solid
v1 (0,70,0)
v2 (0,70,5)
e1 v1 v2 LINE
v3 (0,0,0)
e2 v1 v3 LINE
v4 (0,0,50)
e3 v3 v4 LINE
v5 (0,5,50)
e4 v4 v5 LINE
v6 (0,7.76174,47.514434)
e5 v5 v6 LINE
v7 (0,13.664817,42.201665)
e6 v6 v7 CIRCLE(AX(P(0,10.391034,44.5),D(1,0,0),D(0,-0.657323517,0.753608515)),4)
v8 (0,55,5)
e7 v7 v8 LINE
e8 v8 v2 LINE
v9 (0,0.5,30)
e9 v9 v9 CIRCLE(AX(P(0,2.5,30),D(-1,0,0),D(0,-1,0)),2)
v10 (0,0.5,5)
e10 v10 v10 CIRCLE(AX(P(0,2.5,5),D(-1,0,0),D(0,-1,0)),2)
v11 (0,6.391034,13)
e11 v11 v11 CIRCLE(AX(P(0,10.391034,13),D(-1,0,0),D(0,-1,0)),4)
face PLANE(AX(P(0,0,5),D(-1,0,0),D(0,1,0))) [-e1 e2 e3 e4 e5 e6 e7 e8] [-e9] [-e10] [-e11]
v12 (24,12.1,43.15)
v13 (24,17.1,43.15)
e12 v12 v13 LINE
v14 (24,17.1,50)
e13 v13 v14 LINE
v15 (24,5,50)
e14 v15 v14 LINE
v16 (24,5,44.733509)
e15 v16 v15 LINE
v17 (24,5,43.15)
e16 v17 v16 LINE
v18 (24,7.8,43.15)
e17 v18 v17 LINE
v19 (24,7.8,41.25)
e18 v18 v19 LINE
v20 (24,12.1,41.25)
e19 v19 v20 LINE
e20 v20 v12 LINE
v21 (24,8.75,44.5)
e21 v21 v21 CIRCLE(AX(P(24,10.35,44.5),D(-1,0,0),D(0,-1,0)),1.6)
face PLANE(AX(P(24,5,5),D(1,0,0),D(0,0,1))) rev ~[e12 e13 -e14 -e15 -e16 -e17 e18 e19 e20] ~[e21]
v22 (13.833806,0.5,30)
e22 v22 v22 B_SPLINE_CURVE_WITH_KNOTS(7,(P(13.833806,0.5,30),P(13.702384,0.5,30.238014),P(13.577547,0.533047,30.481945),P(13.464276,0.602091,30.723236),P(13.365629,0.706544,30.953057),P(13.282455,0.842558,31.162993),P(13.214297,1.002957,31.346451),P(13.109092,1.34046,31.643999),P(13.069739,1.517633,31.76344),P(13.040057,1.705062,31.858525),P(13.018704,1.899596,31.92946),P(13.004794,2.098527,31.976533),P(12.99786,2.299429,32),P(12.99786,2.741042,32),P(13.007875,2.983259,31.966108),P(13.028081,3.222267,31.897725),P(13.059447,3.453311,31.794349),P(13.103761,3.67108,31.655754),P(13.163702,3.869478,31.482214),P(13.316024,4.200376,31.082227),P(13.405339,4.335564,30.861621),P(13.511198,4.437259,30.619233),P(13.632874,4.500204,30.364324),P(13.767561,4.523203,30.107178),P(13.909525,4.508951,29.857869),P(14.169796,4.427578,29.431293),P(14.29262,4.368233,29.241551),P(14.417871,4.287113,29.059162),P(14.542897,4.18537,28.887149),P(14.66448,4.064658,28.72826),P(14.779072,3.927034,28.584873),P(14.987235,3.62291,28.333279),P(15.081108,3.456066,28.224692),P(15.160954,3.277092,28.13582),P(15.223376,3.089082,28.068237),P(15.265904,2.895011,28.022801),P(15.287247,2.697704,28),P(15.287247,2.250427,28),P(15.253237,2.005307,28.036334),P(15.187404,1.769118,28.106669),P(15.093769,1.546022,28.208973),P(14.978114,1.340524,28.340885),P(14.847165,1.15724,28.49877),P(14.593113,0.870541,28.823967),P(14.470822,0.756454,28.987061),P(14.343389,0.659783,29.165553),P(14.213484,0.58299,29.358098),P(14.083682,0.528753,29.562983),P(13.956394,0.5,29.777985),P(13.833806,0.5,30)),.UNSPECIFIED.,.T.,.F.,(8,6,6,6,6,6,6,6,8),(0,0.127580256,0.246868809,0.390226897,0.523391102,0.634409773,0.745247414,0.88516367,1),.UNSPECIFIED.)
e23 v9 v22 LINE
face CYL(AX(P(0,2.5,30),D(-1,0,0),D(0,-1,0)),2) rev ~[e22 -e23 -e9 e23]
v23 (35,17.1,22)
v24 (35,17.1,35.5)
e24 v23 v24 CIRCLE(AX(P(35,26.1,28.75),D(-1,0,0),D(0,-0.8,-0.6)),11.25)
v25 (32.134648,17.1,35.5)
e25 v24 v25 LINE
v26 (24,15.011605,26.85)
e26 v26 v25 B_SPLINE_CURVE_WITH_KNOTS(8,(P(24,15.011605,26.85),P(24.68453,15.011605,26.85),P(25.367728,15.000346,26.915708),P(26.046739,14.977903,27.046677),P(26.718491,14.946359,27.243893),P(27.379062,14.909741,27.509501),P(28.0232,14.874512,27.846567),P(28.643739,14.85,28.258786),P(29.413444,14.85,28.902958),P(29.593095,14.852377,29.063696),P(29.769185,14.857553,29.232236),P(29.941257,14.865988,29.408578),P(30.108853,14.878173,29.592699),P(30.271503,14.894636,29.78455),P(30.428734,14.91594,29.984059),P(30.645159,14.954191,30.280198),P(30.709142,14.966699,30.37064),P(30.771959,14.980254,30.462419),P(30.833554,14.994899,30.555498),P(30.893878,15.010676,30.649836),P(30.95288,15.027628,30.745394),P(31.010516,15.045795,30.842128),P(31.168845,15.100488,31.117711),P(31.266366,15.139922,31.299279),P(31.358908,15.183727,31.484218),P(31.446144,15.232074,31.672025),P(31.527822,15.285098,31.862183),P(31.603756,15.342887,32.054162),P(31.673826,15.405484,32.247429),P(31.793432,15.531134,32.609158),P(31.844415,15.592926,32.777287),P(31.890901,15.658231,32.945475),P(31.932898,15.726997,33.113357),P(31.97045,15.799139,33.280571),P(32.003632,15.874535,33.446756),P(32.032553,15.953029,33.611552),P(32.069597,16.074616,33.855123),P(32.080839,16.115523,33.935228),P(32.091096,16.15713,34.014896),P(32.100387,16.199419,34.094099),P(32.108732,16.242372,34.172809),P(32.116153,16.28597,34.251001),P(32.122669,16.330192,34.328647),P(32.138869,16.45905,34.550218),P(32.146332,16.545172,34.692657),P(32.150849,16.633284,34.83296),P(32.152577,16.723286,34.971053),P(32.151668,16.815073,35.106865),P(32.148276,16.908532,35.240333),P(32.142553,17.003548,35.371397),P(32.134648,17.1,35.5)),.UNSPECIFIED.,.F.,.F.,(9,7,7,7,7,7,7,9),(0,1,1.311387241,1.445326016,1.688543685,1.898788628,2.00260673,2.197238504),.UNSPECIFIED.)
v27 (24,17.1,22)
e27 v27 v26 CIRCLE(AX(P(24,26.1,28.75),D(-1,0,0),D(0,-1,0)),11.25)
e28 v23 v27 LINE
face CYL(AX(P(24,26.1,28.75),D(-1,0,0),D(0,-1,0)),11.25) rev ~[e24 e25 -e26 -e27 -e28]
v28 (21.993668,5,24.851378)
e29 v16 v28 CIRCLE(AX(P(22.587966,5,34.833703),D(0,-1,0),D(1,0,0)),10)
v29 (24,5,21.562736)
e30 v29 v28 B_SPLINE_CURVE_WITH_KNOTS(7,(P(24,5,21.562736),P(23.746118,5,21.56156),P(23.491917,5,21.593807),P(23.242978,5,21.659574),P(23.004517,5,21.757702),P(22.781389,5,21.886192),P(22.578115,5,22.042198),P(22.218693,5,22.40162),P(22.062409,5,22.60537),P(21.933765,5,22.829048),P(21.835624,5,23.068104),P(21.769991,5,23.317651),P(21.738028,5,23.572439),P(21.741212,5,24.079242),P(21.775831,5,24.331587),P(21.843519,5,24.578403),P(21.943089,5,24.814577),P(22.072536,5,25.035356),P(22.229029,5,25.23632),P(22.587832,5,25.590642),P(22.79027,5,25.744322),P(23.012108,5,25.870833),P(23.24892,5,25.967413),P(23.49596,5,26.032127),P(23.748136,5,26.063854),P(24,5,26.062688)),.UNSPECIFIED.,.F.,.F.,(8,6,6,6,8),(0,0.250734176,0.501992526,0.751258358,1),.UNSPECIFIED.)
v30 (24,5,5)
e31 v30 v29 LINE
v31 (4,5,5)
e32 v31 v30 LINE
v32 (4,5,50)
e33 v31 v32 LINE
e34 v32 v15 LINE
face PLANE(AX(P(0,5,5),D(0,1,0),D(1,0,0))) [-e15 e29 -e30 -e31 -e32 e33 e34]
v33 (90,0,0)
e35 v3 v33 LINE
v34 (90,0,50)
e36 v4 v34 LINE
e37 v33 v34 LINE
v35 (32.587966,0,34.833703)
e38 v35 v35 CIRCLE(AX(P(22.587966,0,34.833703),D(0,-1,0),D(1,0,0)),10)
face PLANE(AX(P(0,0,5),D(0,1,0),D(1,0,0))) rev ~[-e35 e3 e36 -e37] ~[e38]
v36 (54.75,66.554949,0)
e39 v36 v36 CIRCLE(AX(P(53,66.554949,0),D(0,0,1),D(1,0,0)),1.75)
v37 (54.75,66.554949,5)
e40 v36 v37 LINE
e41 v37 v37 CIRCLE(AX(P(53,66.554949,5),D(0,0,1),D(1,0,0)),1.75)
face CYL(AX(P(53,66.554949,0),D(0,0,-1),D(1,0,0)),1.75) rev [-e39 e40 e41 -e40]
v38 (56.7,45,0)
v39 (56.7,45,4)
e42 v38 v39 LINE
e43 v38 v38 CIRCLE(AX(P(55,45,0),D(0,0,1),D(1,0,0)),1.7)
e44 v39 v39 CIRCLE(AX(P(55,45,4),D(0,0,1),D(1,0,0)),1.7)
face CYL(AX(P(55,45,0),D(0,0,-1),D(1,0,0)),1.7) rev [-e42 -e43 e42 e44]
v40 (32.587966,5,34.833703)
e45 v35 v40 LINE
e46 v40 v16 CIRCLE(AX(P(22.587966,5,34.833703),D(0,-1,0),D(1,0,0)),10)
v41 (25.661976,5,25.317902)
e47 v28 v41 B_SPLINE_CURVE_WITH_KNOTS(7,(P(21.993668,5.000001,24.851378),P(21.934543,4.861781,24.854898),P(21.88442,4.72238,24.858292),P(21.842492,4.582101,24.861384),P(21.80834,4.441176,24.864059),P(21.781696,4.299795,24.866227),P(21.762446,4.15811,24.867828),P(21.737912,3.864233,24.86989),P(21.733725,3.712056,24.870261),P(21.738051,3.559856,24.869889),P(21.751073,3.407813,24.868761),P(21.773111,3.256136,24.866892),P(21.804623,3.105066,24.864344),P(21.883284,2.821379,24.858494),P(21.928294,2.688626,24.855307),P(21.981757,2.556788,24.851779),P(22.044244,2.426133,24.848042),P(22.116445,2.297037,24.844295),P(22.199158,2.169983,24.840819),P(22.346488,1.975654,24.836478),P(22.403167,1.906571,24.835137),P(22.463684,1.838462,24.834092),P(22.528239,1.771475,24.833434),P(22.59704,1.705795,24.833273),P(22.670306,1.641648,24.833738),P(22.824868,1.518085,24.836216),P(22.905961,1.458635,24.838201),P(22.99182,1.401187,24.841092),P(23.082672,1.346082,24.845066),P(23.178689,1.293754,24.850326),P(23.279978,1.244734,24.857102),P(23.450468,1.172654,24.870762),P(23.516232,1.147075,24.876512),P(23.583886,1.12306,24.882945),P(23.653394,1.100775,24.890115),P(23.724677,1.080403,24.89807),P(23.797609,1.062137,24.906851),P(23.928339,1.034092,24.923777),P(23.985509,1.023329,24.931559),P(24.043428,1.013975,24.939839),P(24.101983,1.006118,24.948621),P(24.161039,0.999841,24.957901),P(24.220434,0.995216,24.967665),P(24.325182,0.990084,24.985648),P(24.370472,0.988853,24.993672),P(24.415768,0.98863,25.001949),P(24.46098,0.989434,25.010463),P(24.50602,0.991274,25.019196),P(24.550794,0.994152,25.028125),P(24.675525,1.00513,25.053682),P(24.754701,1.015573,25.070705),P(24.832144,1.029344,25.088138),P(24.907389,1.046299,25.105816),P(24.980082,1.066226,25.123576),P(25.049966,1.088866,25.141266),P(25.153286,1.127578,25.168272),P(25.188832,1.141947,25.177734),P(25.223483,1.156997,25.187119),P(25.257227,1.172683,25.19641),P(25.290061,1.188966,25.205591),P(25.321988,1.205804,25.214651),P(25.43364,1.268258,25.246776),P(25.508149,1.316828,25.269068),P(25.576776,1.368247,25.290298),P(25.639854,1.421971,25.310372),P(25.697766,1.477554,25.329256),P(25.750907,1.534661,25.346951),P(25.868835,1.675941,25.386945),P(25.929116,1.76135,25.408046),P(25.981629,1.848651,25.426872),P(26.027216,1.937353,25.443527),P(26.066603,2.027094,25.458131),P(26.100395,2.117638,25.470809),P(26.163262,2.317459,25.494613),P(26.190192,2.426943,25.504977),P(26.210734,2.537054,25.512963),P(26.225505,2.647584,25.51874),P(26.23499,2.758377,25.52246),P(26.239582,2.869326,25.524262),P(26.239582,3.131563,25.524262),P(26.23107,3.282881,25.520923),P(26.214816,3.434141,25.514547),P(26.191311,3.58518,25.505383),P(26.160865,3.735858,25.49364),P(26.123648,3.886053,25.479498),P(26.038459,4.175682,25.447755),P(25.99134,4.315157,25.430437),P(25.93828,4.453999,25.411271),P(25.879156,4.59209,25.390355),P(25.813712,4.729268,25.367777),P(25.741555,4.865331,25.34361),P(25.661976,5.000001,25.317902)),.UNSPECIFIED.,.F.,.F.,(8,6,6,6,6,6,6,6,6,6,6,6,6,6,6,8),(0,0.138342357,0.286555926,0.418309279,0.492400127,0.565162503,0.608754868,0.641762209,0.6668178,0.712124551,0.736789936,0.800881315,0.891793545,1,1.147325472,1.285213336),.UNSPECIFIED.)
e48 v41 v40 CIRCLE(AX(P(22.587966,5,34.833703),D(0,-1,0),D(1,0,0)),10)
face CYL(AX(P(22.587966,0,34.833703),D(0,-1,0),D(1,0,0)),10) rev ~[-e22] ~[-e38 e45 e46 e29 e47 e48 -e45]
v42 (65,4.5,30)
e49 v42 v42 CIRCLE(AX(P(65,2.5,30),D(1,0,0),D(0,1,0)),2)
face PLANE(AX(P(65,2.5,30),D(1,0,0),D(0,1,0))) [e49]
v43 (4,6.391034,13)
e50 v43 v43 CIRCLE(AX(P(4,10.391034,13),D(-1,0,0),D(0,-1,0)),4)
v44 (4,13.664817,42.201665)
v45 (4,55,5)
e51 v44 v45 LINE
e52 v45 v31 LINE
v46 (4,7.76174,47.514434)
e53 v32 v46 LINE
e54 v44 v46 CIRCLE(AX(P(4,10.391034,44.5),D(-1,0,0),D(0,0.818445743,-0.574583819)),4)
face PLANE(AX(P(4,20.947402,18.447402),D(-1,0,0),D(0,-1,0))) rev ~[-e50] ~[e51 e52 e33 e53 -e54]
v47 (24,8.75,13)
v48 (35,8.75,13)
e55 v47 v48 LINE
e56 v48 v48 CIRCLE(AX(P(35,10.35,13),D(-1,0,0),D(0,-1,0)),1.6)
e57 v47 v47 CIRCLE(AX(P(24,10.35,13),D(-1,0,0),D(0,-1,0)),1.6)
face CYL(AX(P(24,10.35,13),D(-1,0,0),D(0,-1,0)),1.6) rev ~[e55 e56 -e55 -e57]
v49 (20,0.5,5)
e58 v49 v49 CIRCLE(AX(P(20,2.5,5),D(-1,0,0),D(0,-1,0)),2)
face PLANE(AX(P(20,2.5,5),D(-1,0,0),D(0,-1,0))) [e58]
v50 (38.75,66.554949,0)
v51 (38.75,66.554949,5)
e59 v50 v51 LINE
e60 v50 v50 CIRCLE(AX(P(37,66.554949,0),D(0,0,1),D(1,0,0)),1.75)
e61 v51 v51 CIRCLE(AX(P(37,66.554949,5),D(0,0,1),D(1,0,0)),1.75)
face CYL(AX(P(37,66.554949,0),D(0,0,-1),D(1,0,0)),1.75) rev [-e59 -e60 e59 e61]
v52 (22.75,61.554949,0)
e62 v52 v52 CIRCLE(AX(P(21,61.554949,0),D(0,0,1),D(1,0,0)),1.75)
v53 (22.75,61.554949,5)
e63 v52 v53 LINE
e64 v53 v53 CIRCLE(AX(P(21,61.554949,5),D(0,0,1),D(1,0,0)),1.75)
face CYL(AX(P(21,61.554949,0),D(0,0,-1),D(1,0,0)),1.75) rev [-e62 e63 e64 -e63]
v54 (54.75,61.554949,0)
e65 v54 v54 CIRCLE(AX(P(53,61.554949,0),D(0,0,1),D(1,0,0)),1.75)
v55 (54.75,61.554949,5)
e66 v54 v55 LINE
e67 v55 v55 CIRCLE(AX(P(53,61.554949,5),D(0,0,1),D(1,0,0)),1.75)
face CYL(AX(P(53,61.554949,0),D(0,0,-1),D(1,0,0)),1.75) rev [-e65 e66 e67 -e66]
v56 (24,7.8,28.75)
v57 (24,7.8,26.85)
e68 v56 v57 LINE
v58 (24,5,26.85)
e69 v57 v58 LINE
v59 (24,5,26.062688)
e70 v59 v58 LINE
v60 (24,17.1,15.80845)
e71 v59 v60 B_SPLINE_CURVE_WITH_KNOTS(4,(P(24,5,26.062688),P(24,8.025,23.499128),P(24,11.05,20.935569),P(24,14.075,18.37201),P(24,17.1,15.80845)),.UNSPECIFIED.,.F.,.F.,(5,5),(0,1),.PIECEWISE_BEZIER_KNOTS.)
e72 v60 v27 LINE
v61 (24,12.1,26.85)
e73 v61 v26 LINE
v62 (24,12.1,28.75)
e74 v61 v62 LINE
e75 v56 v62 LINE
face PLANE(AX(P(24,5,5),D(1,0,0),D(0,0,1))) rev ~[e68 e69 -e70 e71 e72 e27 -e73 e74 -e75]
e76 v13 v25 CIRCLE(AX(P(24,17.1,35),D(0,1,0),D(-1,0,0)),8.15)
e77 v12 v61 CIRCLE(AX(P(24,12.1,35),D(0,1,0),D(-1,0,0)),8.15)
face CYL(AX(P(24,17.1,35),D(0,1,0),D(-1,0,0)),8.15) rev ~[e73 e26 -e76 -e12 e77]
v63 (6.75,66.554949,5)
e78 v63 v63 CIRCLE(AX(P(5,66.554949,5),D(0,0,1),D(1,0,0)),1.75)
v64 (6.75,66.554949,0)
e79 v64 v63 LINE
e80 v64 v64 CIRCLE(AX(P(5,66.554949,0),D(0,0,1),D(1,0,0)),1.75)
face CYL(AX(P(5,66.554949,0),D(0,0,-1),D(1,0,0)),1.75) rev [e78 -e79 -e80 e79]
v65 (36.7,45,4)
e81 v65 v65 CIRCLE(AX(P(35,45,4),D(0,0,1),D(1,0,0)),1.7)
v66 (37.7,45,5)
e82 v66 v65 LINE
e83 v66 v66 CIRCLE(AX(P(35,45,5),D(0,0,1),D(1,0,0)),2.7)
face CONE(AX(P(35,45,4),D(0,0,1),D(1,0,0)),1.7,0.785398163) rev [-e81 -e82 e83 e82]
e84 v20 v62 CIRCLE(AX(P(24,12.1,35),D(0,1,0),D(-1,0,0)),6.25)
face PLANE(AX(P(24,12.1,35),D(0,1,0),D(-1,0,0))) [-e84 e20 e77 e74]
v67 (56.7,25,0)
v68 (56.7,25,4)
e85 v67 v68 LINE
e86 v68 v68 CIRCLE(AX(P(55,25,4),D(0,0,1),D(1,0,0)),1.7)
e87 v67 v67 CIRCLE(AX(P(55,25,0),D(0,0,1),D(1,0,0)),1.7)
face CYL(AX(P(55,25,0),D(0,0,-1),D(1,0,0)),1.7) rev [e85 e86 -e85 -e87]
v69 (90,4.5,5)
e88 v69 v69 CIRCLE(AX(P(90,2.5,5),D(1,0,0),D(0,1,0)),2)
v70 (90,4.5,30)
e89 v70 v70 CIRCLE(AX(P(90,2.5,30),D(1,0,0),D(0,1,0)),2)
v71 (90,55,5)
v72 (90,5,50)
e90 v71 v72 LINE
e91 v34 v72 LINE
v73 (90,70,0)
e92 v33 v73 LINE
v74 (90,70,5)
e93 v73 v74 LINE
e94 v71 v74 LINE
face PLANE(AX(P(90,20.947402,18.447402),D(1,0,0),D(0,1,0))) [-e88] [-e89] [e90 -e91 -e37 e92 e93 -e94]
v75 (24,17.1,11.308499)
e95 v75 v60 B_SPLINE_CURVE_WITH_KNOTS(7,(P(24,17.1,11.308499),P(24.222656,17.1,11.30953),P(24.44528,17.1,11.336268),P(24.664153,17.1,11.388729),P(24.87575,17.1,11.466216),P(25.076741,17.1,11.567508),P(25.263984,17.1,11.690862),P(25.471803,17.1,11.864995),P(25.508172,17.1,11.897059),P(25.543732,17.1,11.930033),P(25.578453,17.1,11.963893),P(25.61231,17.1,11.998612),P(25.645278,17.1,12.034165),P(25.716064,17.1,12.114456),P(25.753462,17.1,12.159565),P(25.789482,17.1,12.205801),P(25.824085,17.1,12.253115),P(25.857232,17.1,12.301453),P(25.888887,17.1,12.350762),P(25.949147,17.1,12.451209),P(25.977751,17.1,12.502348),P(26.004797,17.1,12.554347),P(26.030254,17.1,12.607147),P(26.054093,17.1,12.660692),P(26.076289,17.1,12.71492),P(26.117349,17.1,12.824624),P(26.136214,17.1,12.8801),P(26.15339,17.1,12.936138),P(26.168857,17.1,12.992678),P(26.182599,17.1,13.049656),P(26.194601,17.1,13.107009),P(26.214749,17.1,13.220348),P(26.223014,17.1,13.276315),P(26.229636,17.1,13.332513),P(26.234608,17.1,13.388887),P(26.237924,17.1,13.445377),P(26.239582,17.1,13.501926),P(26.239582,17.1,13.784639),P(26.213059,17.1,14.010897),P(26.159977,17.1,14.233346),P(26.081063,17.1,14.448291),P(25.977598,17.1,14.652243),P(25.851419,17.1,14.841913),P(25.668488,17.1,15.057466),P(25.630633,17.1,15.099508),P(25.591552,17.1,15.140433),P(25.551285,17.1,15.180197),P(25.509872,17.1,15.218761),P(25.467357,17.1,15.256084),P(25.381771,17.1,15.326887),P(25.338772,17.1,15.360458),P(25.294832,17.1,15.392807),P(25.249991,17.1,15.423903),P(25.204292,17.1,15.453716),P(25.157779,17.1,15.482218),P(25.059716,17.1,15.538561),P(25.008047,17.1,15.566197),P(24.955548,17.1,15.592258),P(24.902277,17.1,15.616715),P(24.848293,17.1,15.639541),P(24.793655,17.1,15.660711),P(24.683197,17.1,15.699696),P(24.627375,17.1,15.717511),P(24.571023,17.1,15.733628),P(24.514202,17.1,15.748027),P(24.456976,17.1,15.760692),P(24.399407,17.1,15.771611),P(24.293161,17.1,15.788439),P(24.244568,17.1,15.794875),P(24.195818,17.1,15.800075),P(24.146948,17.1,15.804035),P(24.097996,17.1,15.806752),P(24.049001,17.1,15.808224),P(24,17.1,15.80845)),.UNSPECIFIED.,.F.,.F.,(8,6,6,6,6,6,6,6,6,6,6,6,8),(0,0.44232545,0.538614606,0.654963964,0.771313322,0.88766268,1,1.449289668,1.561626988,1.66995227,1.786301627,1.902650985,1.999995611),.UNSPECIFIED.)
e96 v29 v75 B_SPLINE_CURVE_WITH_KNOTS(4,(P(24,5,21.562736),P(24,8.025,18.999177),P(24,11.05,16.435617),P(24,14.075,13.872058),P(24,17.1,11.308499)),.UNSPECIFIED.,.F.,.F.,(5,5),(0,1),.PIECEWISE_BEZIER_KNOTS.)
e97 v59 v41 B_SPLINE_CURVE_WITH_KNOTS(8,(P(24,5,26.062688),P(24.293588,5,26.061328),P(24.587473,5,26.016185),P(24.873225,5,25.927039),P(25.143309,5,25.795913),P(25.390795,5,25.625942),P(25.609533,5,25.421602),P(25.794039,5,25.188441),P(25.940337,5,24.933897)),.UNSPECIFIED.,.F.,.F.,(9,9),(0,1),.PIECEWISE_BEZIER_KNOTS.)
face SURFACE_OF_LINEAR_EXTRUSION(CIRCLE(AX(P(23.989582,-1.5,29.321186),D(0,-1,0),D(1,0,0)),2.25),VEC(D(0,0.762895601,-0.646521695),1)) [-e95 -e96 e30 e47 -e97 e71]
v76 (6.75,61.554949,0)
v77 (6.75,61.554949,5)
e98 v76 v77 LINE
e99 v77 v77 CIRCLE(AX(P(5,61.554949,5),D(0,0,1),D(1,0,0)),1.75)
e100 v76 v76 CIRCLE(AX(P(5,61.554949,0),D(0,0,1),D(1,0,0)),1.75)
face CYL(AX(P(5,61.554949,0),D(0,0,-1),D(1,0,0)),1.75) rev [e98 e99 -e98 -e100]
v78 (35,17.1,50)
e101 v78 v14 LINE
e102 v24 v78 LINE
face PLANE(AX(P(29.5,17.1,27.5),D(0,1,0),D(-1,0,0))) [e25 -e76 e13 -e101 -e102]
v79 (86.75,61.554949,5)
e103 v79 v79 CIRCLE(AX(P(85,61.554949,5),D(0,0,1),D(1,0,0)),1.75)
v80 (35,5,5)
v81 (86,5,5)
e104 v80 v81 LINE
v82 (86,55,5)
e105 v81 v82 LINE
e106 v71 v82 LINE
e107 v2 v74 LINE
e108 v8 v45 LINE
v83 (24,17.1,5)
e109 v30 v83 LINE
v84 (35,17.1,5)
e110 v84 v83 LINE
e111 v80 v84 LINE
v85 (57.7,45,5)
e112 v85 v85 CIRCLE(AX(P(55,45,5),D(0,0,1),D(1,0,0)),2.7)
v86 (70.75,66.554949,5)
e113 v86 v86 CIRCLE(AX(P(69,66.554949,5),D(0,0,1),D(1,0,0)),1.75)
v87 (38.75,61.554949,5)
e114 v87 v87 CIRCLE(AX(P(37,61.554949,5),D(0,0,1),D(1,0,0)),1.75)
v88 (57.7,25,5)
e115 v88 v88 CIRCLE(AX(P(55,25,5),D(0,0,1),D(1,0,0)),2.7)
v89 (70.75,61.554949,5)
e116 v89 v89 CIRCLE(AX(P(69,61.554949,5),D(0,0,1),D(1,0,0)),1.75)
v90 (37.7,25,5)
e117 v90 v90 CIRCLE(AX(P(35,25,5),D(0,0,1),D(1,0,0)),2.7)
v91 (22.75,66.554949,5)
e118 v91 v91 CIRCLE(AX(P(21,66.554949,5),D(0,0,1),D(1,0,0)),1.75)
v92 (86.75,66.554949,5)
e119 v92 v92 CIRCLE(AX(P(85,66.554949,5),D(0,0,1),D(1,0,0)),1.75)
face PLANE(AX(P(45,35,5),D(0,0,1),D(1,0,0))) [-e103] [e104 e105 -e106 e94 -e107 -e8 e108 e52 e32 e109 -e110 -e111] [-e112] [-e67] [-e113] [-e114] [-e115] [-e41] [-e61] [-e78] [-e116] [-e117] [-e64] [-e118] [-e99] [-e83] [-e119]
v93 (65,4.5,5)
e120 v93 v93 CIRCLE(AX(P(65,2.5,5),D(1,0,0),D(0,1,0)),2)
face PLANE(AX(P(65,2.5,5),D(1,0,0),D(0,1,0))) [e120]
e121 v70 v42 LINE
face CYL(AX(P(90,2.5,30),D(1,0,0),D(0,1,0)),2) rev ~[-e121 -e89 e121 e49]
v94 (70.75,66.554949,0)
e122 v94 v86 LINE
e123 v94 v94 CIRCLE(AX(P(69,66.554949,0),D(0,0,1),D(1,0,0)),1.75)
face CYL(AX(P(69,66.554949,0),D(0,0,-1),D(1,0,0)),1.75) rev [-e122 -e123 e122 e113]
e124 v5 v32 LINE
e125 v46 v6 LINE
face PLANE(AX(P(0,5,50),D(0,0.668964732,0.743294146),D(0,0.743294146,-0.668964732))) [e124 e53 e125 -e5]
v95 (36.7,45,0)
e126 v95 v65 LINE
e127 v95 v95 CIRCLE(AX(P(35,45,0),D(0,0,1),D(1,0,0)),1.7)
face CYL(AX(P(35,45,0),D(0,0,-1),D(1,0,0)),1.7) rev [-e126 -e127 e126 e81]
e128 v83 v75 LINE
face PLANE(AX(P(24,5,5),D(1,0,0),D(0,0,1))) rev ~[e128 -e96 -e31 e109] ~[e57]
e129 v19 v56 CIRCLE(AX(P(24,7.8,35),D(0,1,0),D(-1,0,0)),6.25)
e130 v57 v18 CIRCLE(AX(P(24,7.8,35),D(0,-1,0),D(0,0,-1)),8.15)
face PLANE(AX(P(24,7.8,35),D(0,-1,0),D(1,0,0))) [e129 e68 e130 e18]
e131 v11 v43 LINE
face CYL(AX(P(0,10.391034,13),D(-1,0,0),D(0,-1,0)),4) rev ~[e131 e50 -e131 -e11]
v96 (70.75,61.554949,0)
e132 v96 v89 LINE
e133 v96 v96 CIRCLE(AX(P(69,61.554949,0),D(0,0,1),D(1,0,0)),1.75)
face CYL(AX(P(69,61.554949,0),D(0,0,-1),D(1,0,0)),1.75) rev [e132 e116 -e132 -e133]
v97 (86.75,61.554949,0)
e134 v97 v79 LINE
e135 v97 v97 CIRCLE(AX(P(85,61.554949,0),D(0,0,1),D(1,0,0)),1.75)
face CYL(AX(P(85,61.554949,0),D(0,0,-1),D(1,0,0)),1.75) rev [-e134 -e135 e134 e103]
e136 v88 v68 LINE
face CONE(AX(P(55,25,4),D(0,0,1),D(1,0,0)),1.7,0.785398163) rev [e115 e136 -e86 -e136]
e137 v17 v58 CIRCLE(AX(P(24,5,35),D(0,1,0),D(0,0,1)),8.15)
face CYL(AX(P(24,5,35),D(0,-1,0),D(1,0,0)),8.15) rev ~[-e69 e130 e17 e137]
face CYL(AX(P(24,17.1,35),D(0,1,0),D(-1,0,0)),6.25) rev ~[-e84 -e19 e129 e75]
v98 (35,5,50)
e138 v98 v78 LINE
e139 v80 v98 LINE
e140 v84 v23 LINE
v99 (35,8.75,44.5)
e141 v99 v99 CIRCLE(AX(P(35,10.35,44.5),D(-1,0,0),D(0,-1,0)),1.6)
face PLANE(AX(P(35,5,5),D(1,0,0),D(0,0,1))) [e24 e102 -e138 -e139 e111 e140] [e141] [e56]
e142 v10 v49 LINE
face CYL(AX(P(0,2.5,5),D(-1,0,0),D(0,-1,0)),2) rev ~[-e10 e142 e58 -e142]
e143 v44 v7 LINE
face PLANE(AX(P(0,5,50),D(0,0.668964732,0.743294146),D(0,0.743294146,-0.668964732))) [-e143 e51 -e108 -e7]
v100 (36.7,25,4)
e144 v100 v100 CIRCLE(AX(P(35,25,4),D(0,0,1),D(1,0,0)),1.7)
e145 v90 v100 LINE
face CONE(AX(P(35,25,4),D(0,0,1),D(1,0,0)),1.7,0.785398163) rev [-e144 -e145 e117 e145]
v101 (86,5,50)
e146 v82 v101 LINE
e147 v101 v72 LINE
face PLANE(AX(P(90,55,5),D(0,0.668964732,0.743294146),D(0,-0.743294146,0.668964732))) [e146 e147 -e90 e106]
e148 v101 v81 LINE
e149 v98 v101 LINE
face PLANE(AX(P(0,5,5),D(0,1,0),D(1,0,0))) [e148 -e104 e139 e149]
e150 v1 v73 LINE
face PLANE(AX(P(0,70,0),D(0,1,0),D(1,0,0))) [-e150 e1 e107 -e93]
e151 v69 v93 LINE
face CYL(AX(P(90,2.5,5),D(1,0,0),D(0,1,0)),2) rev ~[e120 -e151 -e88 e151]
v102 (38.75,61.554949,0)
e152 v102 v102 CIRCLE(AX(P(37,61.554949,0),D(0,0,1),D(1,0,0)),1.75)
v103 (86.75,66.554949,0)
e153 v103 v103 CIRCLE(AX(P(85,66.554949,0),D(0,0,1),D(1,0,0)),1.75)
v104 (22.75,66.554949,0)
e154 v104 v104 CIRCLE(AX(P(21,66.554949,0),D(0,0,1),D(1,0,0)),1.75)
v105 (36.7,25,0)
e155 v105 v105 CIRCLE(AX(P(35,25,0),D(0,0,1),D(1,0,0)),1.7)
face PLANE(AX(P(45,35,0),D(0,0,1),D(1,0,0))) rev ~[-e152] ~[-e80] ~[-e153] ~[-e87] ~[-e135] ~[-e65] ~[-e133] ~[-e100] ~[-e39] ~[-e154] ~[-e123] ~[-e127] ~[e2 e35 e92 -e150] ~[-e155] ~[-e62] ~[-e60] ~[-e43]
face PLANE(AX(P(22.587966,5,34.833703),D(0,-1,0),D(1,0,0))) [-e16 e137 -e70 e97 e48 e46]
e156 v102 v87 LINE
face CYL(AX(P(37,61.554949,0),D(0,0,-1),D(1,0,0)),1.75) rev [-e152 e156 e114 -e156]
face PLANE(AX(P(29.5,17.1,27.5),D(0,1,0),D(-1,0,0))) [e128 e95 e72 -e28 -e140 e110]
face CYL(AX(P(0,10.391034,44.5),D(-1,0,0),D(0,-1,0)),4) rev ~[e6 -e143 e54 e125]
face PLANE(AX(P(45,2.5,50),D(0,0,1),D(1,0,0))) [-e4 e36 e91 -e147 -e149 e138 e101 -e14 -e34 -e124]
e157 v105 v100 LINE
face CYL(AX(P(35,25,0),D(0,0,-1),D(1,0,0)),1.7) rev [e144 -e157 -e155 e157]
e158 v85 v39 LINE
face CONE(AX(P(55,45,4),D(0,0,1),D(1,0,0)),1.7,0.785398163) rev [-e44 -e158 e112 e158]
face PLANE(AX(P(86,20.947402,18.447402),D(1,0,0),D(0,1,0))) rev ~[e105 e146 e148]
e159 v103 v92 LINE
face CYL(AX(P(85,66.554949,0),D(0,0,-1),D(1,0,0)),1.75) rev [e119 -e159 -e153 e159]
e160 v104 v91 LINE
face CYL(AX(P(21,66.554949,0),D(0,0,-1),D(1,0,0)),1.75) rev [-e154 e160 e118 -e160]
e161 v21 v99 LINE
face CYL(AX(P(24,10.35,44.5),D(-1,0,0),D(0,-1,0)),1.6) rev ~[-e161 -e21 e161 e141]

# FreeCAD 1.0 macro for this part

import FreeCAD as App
import Part
import Sketcher

V = App.Vector
Q = App.Units.Quantity


def edges_at(feature, points):
    """Names of the edges that pass closest to the given points."""
    edges = feature.Shape.Edges
    near = lambda p: min(range(len(edges)), key=lambda i: edges[i].distToShape(Part.Vertex(*p))[0])
    return sorted({f"Edge{near(p) + 1}" for p in points})

doc = App.newDocument("Part")
params = doc.addObject("Spreadsheet::Sheet", "Params")
for row, (alias, value) in enumerate([
    ("sketch1_diameter", "3.4 mm"),
    ("sketch1_diameter2", "3.5 mm"),
    ("sketch1_width", "90 mm"),
    ("sketch1_height", "70 mm"),
    ("pad1_length", "5 mm"),
    ("sketch2_width", "90 mm"),
    ("sketch2_height", "5 mm"),
    ("pad2_length", "45 mm"),
    ("sketch3_width", "11 mm"),
    ("sketch3_height", "45 mm"),
    ("pad3_length", "12.1 mm"),
    ("sketch4_diameter", "12.5 mm"),
    ("pocket1_length", "25 mm"),
    ("sketch5_diameter", "16.3 mm"),
    ("pocket2_length", "5 mm"),
    ("sketch6_diameter", "20 mm"),
    ("pocket3_length", "5 mm"),
    ("sketch7_diameter", "16.3 mm"),
    ("pocket4_length", "2.8 mm"),
    ("sketch8_diameter", "3.2 mm"),
    ("sketch8_diameter2", "22.5 mm"),
    ("pocket5_length", "25 mm"),
    ("sketch9_width", "5 mm"),
    ("sketch9_width2", "55 mm"),
    ("sketch9_height", "50 mm"),
    ("pad4_length", "4 mm"),
    ("sketch10_width", "5 mm"),
    ("sketch10_width2", "55 mm"),
    ("sketch10_height", "50 mm"),
    ("pad5_length", "4 mm"),
    ("sketch11_diameter", "8 mm"),
    ("pocket6_length", "5 mm"),
    ("sketch12_diameter", "4 mm"),
    ("pocket7_length", "20 mm"),
    ("chamfer_size", "1 mm"),
    ("sketch13_diameter", "4.5 mm"),
    ("sketch15_diameter", "4 mm"),
    ("pocket8_length", "25 mm"),
], start=1):
    params.set(f"A{row}", alias)
    params.set(f"B{row}", "=" + value)
    params.setAlias(f"B{row}", alias)

body = doc.addObject("PartDesign::Body", "Body")

sketch1 = doc.addObject("Sketcher::SketchObject", "Sketch")
body.addObject(sketch1)
sketch1.AttachmentSupport = (doc.XY_Plane, [""])
sketch1.MapMode = "FlatFace"
sketch1.addGeometry([
    Part.LineSegment(V(0, 70, 0), V(0, 0, 0)),
    Part.LineSegment(V(0, 0, 0), V(90, 0, 0)),
    Part.LineSegment(V(90, 0, 0), V(90, 70, 0)),
    Part.LineSegment(V(90, 70, 0), V(0, 70, 0)),
    Part.Circle(V(35, 25, 0), V(0, 0, 1), 1.7),
    Part.Circle(V(35, 45, 0), V(0, 0, 1), 1.7),
    Part.Circle(V(55, 25, 0), V(0, 0, 1), 1.7),
    Part.Circle(V(55, 45, 0), V(0, 0, 1), 1.7),
    Part.Circle(V(5, 61.554949, 0), V(0, 0, 1), 1.75),
    Part.Circle(V(21, 61.554949, 0), V(0, 0, 1), 1.75),
    Part.Circle(V(5, 66.554949, 0), V(0, 0, 1), 1.75),
    Part.Circle(V(21, 66.554949, 0), V(0, 0, 1), 1.75),
    Part.Circle(V(37, 61.554949, 0), V(0, 0, 1), 1.75),
    Part.Circle(V(37, 66.554949, 0), V(0, 0, 1), 1.75),
    Part.Circle(V(53, 61.554949, 0), V(0, 0, 1), 1.75),
    Part.Circle(V(53, 66.554949, 0), V(0, 0, 1), 1.75),
    Part.Circle(V(69, 61.554949, 0), V(0, 0, 1), 1.75),
    Part.Circle(V(85, 61.554949, 0), V(0, 0, 1), 1.75),
    Part.Circle(V(69, 66.554949, 0), V(0, 0, 1), 1.75),
    Part.Circle(V(85, 66.554949, 0), V(0, 0, 1), 1.75),
], False)
sketch1.addConstraint([
    Sketcher.Constraint("Coincident", 0, 2, 1, 1),
    Sketcher.Constraint("Coincident", 1, 2, 2, 1),
    Sketcher.Constraint("Coincident", 2, 2, 3, 1),
    Sketcher.Constraint("Coincident", 3, 2, 0, 1),
    Sketcher.Constraint("Vertical", 0),
    Sketcher.Constraint("Horizontal", 1),
    Sketcher.Constraint("Vertical", 2),
    Sketcher.Constraint("Horizontal", 3),
    Sketcher.Constraint("Coincident", 0, 2, -1, 1),
    Sketcher.Constraint("Equal", 4, 5),
    Sketcher.Constraint("Equal", 5, 6),
    Sketcher.Constraint("Equal", 6, 7),
    Sketcher.Constraint("Equal", 8, 9),
    Sketcher.Constraint("Equal", 9, 10),
    Sketcher.Constraint("Equal", 10, 11),
    Sketcher.Constraint("Equal", 11, 12),
    Sketcher.Constraint("Equal", 12, 13),
    Sketcher.Constraint("Equal", 13, 14),
    Sketcher.Constraint("Equal", 14, 15),
    Sketcher.Constraint("Equal", 15, 16),
    Sketcher.Constraint("Equal", 16, 17),
    Sketcher.Constraint("Equal", 17, 18),
    Sketcher.Constraint("Equal", 18, 19),
    Sketcher.Constraint("Horizontal", 4, 3, 6, 3),
    Sketcher.Constraint("Horizontal", 5, 3, 7, 3),
    Sketcher.Constraint("Horizontal", 8, 3, 9, 3),
    Sketcher.Constraint("Horizontal", 10, 3, 11, 3),
    Sketcher.Constraint("Horizontal", 9, 3, 12, 3),
    Sketcher.Constraint("Horizontal", 11, 3, 13, 3),
    Sketcher.Constraint("Horizontal", 12, 3, 14, 3),
    Sketcher.Constraint("Horizontal", 13, 3, 15, 3),
    Sketcher.Constraint("Horizontal", 14, 3, 16, 3),
    Sketcher.Constraint("Horizontal", 16, 3, 17, 3),
    Sketcher.Constraint("Horizontal", 15, 3, 18, 3),
    Sketcher.Constraint("Horizontal", 18, 3, 19, 3),
    Sketcher.Constraint("Vertical", 4, 3, 5, 3),
    Sketcher.Constraint("Vertical", 6, 3, 7, 3),
    Sketcher.Constraint("Vertical", 8, 3, 10, 3),
    Sketcher.Constraint("Vertical", 9, 3, 11, 3),
    Sketcher.Constraint("Vertical", 12, 3, 13, 3),
    Sketcher.Constraint("Vertical", 14, 3, 15, 3),
    Sketcher.Constraint("Vertical", 16, 3, 18, 3),
    Sketcher.Constraint("Vertical", 17, 3, 19, 3),
    Sketcher.Constraint("Diameter", 4, Q("3.4 mm")),
    Sketcher.Constraint("Diameter", 8, Q("3.5 mm")),
    Sketcher.Constraint("DistanceX", 1, 1, 1, 2, Q("90 mm")),
    Sketcher.Constraint("DistanceY", 0, 2, 0, 1, Q("70 mm")),
    Sketcher.Constraint("DistanceX", -1, 1, 4, 3, Q("35 mm")),
    Sketcher.Constraint("DistanceY", -1, 1, 4, 3, Q("25 mm")),
    Sketcher.Constraint("DistanceY", -1, 1, 5, 3, Q("45 mm")),
    Sketcher.Constraint("DistanceX", -1, 1, 6, 3, Q("55 mm")),
    Sketcher.Constraint("DistanceX", -1, 1, 8, 3, Q("5 mm")),
    Sketcher.Constraint("DistanceX", -1, 1, 9, 3, Q("21 mm")),
    Sketcher.Constraint("DistanceX", -1, 1, 12, 3, Q("37 mm")),
    Sketcher.Constraint("DistanceX", -1, 1, 14, 3, Q("53 mm")),
    Sketcher.Constraint("DistanceX", -1, 1, 16, 3, Q("69 mm")),
    Sketcher.Constraint("DistanceX", -1, 1, 17, 3, Q("85 mm")),
    Sketcher.Constraint("DistanceY", 8, 3, 10, 3, Q("5 mm")),
    Sketcher.Constraint("DistanceY", -1, 1, 8, 3, Q("61.554949 mm")),
])
sketch1.setExpression("Constraints[43]", "Params.sketch1_diameter")
sketch1.setExpression("Constraints[44]", "Params.sketch1_diameter2")
sketch1.setExpression("Constraints[45]", "Params.sketch1_width")
sketch1.setExpression("Constraints[46]", "Params.sketch1_height")
pad1 = doc.addObject("PartDesign::Pad", "Pad")
body.addObject(pad1)
pad1.Profile = sketch1
pad1.setExpression("Length", "Params.pad1_length")

sketch2 = doc.addObject("Sketcher::SketchObject", "Sketch001")
body.addObject(sketch2)
sketch2.AttachmentSupport = (doc.XY_Plane, [""])
sketch2.MapMode = "FlatFace"
sketch2.AttachmentOffset = App.Placement(V(0, 0, 5), App.Rotation())
sketch2.addGeometry([
    Part.LineSegment(V(0, 5, 0), V(0, 0, 0)),
    Part.LineSegment(V(0, 0, 0), V(90, 0, 0)),
    Part.LineSegment(V(90, 0, 0), V(90, 5, 0)),
    Part.LineSegment(V(90, 5, 0), V(0, 5, 0)),
], False)
sketch2.addConstraint([
    Sketcher.Constraint("Coincident", 0, 2, 1, 1),
    Sketcher.Constraint("Coincident", 1, 2, 2, 1),
    Sketcher.Constraint("Coincident", 2, 2, 3, 1),
    Sketcher.Constraint("Coincident", 3, 2, 0, 1),
    Sketcher.Constraint("Vertical", 0),
    Sketcher.Constraint("Horizontal", 1),
    Sketcher.Constraint("Vertical", 2),
    Sketcher.Constraint("Horizontal", 3),
    Sketcher.Constraint("Coincident", 0, 2, -1, 1),
    Sketcher.Constraint("DistanceX", 1, 1, 1, 2, Q("90 mm")),
    Sketcher.Constraint("DistanceY", 0, 2, 0, 1, Q("5 mm")),
])
sketch2.setExpression("Constraints[9]", "Params.sketch2_width")
sketch2.setExpression("Constraints[10]", "Params.sketch2_height")
pad2 = doc.addObject("PartDesign::Pad", "Pad001")
body.addObject(pad2)
pad2.Profile = sketch2
pad2.setExpression("Length", "Params.pad2_length")

sketch3 = doc.addObject("Sketcher::SketchObject", "Sketch002")
body.addObject(sketch3)
sketch3.AttachmentSupport = (doc.XZ_Plane, [""])
sketch3.MapMode = "FlatFace"
sketch3.AttachmentOffset = App.Placement(V(0, 0, -5), App.Rotation())
sketch3.addGeometry([
    Part.LineSegment(V(35, 50, 0), V(35, 5, 0)),
    Part.LineSegment(V(35, 5, 0), V(24, 5, 0)),
    Part.LineSegment(V(24, 5, 0), V(24, 50, 0)),
    Part.LineSegment(V(24, 50, 0), V(35, 50, 0)),
], False)
sketch3.addConstraint([
    Sketcher.Constraint("Coincident", 0, 2, 1, 1),
    Sketcher.Constraint("Coincident", 1, 2, 2, 1),
    Sketcher.Constraint("Coincident", 2, 2, 3, 1),
    Sketcher.Constraint("Coincident", 3, 2, 0, 1),
    Sketcher.Constraint("Vertical", 0),
    Sketcher.Constraint("Horizontal", 1),
    Sketcher.Constraint("Vertical", 2),
    Sketcher.Constraint("Horizontal", 3),
    Sketcher.Constraint("DistanceX", 1, 2, 1, 1, Q("11 mm")),
    Sketcher.Constraint("DistanceY", 0, 2, 0, 1, Q("45 mm")),
    Sketcher.Constraint("DistanceX", -1, 1, 0, 2, Q("35 mm")),
    Sketcher.Constraint("DistanceY", -1, 1, 0, 2, Q("5 mm")),
])
sketch3.setExpression("Constraints[8]", "Params.sketch3_width")
sketch3.setExpression("Constraints[9]", "Params.sketch3_height")
pad3 = doc.addObject("PartDesign::Pad", "Pad002")
body.addObject(pad3)
pad3.Profile = sketch3
pad3.setExpression("Length", "Params.pad3_length")
pad3.Reversed = True

sketch4 = doc.addObject("Sketcher::SketchObject", "Sketch003")
body.addObject(sketch4)
sketch4.AttachmentSupport = (doc.XZ_Plane, [""])
sketch4.MapMode = "FlatFace"
sketch4.AttachmentOffset = App.Placement(V(0, 0, -17.1), App.Rotation())
sketch4.addGeometry(Part.Circle(V(24, 35, 0), V(0, 0, 1), 6.25), False)
sketch4.addConstraint([
    Sketcher.Constraint("Diameter", 0, Q("12.5 mm")),
    Sketcher.Constraint("DistanceX", -1, 1, 0, 3, Q("24 mm")),
    Sketcher.Constraint("DistanceY", -1, 1, 0, 3, Q("35 mm")),
])
sketch4.setExpression("Constraints[0]", "Params.sketch4_diameter")
pocket1 = doc.addObject("PartDesign::Pocket", "Pocket")
body.addObject(pocket1)
pocket1.Profile = sketch4
pocket1.setExpression("Length", "Params.pocket1_length")
pocket1.Reversed = True

sketch5 = doc.addObject("Sketcher::SketchObject", "Sketch004")
body.addObject(sketch5)
sketch5.AttachmentSupport = (doc.XZ_Plane, [""])
sketch5.MapMode = "FlatFace"
sketch5.AttachmentOffset = App.Placement(V(0, 0, -17.1), App.Rotation())
sketch5.addGeometry(Part.Circle(V(24, 35, 0), V(0, 0, 1), 8.15), False)
sketch5.addConstraint([
    Sketcher.Constraint("Diameter", 0, Q("16.3 mm")),
    Sketcher.Constraint("DistanceX", -1, 1, 0, 3, Q("24 mm")),
    Sketcher.Constraint("DistanceY", -1, 1, 0, 3, Q("35 mm")),
])
sketch5.setExpression("Constraints[0]", "Params.sketch5_diameter")
pocket2 = doc.addObject("PartDesign::Pocket", "Pocket001")
body.addObject(pocket2)
pocket2.Profile = sketch5
pocket2.setExpression("Length", "Params.pocket2_length")
pocket2.Reversed = True

sketch6 = doc.addObject("Sketcher::SketchObject", "Sketch005")
body.addObject(sketch6)
sketch6.AttachmentSupport = (doc.XZ_Plane, [""])
sketch6.MapMode = "FlatFace"
sketch6.addGeometry(Part.Circle(V(22.587966, 34.833703, 0), V(0, 0, 1), 10), False)
sketch6.addConstraint([
    Sketcher.Constraint("Diameter", 0, Q("20 mm")),
    Sketcher.Constraint("DistanceX", -1, 1, 0, 3, Q("22.587966 mm")),
    Sketcher.Constraint("DistanceY", -1, 1, 0, 3, Q("34.833703 mm")),
])
sketch6.setExpression("Constraints[0]", "Params.sketch6_diameter")
pocket3 = doc.addObject("PartDesign::Pocket", "Pocket002")
body.addObject(pocket3)
pocket3.Profile = sketch6
pocket3.setExpression("Length", "Params.pocket3_length")

sketch7 = doc.addObject("Sketcher::SketchObject", "Sketch006")
body.addObject(sketch7)
sketch7.AttachmentSupport = (doc.XZ_Plane, [""])
sketch7.MapMode = "FlatFace"
sketch7.AttachmentOffset = App.Placement(V(0, 0, -5), App.Rotation())
sketch7.addGeometry(Part.Circle(V(24, 35, 0), V(0, 0, 1), 8.15), False)
sketch7.addConstraint([
    Sketcher.Constraint("Diameter", 0, Q("16.3 mm")),
    Sketcher.Constraint("DistanceX", -1, 1, 0, 3, Q("24 mm")),
    Sketcher.Constraint("DistanceY", -1, 1, 0, 3, Q("35 mm")),
])
sketch7.setExpression("Constraints[0]", "Params.sketch7_diameter")
pocket4 = doc.addObject("PartDesign::Pocket", "Pocket003")
body.addObject(pocket4)
pocket4.Profile = sketch7
pocket4.setExpression("Length", "Params.pocket4_length")

sketch8 = doc.addObject("Sketcher::SketchObject", "Sketch007")
body.addObject(sketch8)
sketch8.AttachmentSupport = (doc.YZ_Plane, [""])
sketch8.MapMode = "FlatFace"
sketch8.AttachmentOffset = App.Placement(V(0, 0, 24), App.Rotation())
sketch8.addGeometry([
    Part.Circle(V(10.35, 44.5, 0), V(0, 0, 1), 1.6),
    Part.Circle(V(10.35, 13, 0), V(0, 0, 1), 1.6),
    Part.Circle(V(26.1, 28.75, 0), V(0, 0, 1), 11.25),
], False)
sketch8.addConstraint([
    Sketcher.Constraint("Equal", 0, 1),
    Sketcher.Constraint("Vertical", 0, 3, 1, 3),
    Sketcher.Constraint("Diameter", 0, Q("3.2 mm")),
    Sketcher.Constraint("Diameter", 2, Q("22.5 mm")),
    Sketcher.Constraint("DistanceY", -1, 1, 1, 3, Q("13 mm")),
    Sketcher.Constraint("DistanceY", -1, 1, 0, 3, Q("44.5 mm")),
    Sketcher.Constraint("DistanceX", -1, 1, 2, 3, Q("26.1 mm")),
    Sketcher.Constraint("DistanceX", -1, 1, 0, 3, Q("10.35 mm")),
    Sketcher.Constraint("DistanceY", -1, 1, 2, 3, Q("28.75 mm")),
])
sketch8.setExpression("Constraints[2]", "Params.sketch8_diameter")
sketch8.setExpression("Constraints[3]", "Params.sketch8_diameter2")
pocket5 = doc.addObject("PartDesign::Pocket", "Pocket004")
body.addObject(pocket5)
pocket5.Profile = sketch8
pocket5.setExpression("Length", "Params.pocket5_length")
pocket5.Reversed = True

sketch9 = doc.addObject("Sketcher::SketchObject", "Sketch008")
body.addObject(sketch9)
sketch9.AttachmentSupport = (doc.YZ_Plane, [""])
sketch9.MapMode = "FlatFace"
sketch9.addGeometry([
    Part.LineSegment(V(0, 50, 0), V(5, 50, 0)),
    Part.LineSegment(V(5, 50, 0), V(55, 5, 0)),
    Part.LineSegment(V(55, 5, 0), V(55, 0, 0)),
    Part.LineSegment(V(55, 0, 0), V(0, 0, 0)),
    Part.LineSegment(V(0, 0, 0), V(0, 50, 0)),
], False)
sketch9.addConstraint([
    Sketcher.Constraint("Coincident", 0, 2, 1, 1),
    Sketcher.Constraint("Coincident", 1, 2, 2, 1),
    Sketcher.Constraint("Coincident", 2, 2, 3, 1),
    Sketcher.Constraint("Coincident", 3, 2, 4, 1),
    Sketcher.Constraint("Coincident", 4, 2, 0, 1),
    Sketcher.Constraint("Horizontal", 0),
    Sketcher.Constraint("Vertical", 2),
    Sketcher.Constraint("Horizontal", 3),
    Sketcher.Constraint("Vertical", 4),
    Sketcher.Constraint("Coincident", 3, 2, -1, 1),
    Sketcher.Constraint("Equal", 0, 2),
    Sketcher.Constraint("DistanceX", 0, 1, 0, 2, Q("5 mm")),
    Sketcher.Constraint("DistanceX", 3, 2, 3, 1, Q("55 mm")),
    Sketcher.Constraint("DistanceY", 4, 1, 4, 2, Q("50 mm")),
])
sketch9.setExpression("Constraints[11]", "Params.sketch9_width")
sketch9.setExpression("Constraints[12]", "Params.sketch9_width2")
sketch9.setExpression("Constraints[13]", "Params.sketch9_height")
pad4 = doc.addObject("PartDesign::Pad", "Pad003")
body.addObject(pad4)
pad4.Profile = sketch9
pad4.setExpression("Length", "Params.pad4_length")

sketch10 = doc.addObject("Sketcher::SketchObject", "Sketch009")
body.addObject(sketch10)
sketch10.AttachmentSupport = (doc.YZ_Plane, [""])
sketch10.MapMode = "FlatFace"
sketch10.AttachmentOffset = App.Placement(V(0, 0, 90), App.Rotation())
sketch10.addGeometry([
    Part.LineSegment(V(55, 5, 0), V(5, 50, 0)),
    Part.LineSegment(V(5, 50, 0), V(0, 50, 0)),
    Part.LineSegment(V(0, 50, 0), V(0, 0, 0)),
    Part.LineSegment(V(0, 0, 0), V(55, 0, 0)),
    Part.LineSegment(V(55, 0, 0), V(55, 5, 0)),
], False)
sketch10.addConstraint([
    Sketcher.Constraint("Coincident", 0, 2, 1, 1),
    Sketcher.Constraint("Coincident", 1, 2, 2, 1),
    Sketcher.Constraint("Coincident", 2, 2, 3, 1),
    Sketcher.Constraint("Coincident", 3, 2, 4, 1),
    Sketcher.Constraint("Coincident", 4, 2, 0, 1),
    Sketcher.Constraint("Horizontal", 1),
    Sketcher.Constraint("Vertical", 2),
    Sketcher.Constraint("Horizontal", 3),
    Sketcher.Constraint("Vertical", 4),
    Sketcher.Constraint("Coincident", 2, 2, -1, 1),
    Sketcher.Constraint("Equal", 1, 4),
    Sketcher.Constraint("DistanceX", 1, 2, 1, 1, Q("5 mm")),
    Sketcher.Constraint("DistanceX", 3, 1, 3, 2, Q("55 mm")),
    Sketcher.Constraint("DistanceY", 2, 2, 2, 1, Q("50 mm")),
])
sketch10.setExpression("Constraints[11]", "Params.sketch10_width")
sketch10.setExpression("Constraints[12]", "Params.sketch10_width2")
sketch10.setExpression("Constraints[13]", "Params.sketch10_height")
pad5 = doc.addObject("PartDesign::Pad", "Pad004")
body.addObject(pad5)
pad5.Profile = sketch10
pad5.setExpression("Length", "Params.pad5_length")
pad5.Reversed = True

sketch11 = doc.addObject("Sketcher::SketchObject", "Sketch010")
body.addObject(sketch11)
sketch11.AttachmentSupport = (doc.YZ_Plane, [""])
sketch11.MapMode = "FlatFace"
sketch11.addGeometry([
    Part.Circle(V(10.391034, 44.5, 0), V(0, 0, 1), 4),
    Part.Circle(V(10.391034, 13, 0), V(0, 0, 1), 4),
], False)
sketch11.addConstraint([
    Sketcher.Constraint("Equal", 0, 1),
    Sketcher.Constraint("Vertical", 0, 3, 1, 3),
    Sketcher.Constraint("Diameter", 0, Q("8 mm")),
    Sketcher.Constraint("DistanceY", -1, 1, 1, 3, Q("13 mm")),
    Sketcher.Constraint("DistanceY", -1, 1, 0, 3, Q("44.5 mm")),
    Sketcher.Constraint("DistanceX", -1, 1, 0, 3, Q("10.391034 mm")),
])
sketch11.setExpression("Constraints[2]", "Params.sketch11_diameter")
pocket6 = doc.addObject("PartDesign::Pocket", "Pocket005")
body.addObject(pocket6)
pocket6.Profile = sketch11
pocket6.setExpression("Length", "Params.pocket6_length")
pocket6.Reversed = True

sketch12 = doc.addObject("Sketcher::SketchObject", "Sketch011")
body.addObject(sketch12)
sketch12.AttachmentSupport = (doc.YZ_Plane, [""])
sketch12.MapMode = "FlatFace"
sketch12.addGeometry([
    Part.Circle(V(2.5, 5, 0), V(0, 0, 1), 2),
    Part.Circle(V(2.5, 30, 0), V(0, 0, 1), 2),
], False)
sketch12.addConstraint([
    Sketcher.Constraint("Equal", 0, 1),
    Sketcher.Constraint("Vertical", 0, 3, 1, 3),
    Sketcher.Constraint("Diameter", 0, Q("4 mm")),
    Sketcher.Constraint("DistanceY", -1, 1, 0, 3, Q("5 mm")),
    Sketcher.Constraint("DistanceY", -1, 1, 1, 3, Q("30 mm")),
    Sketcher.Constraint("DistanceX", -1, 1, 0, 3, Q("2.5 mm")),
])
sketch12.setExpression("Constraints[2]", "Params.sketch12_diameter")
pocket7 = doc.addObject("PartDesign::Pocket", "Pocket006")
body.addObject(pocket7)
pocket7.Profile = sketch12
pocket7.setExpression("Length", "Params.pocket7_length")
pocket7.Reversed = True
doc.recompute()

chamfer = doc.addObject("PartDesign::Chamfer", "Chamfer")
body.addObject(chamfer)
chamfer.Base = (pocket7, edges_at(pocket7, [
    (33.3, 45, 5),
    (53.3, 45, 5),
    (53.3, 25, 5),
    (33.3, 25, 5),
]))
chamfer.setExpression("Size", "Params.chamfer_size")

sketch13 = doc.addObject("Sketcher::SketchObject", "Sketch012")
body.addObject(sketch13)
sketch13.AttachmentSupport = (doc.XZ_Plane, [""])
sketch13.MapMode = "FlatFace"
sketch13.addGeometry(Part.Circle(V(23.989582, 28.05, 0), V(0, 0, 1), 2.25), False)
sketch13.addConstraint([
    Sketcher.Constraint("Diameter", 0, Q("4.5 mm")),
    Sketcher.Constraint("DistanceY", -1, 1, 0, 3, Q("28.05 mm")),
    Sketcher.Constraint("DistanceX", -1, 1, 0, 3, Q("23.989582 mm")),
])
sketch13.setExpression("Constraints[0]", "Params.sketch13_diameter")

sketch14 = doc.addObject("Sketcher::SketchObject", "Sketch013")
body.addObject(sketch14)
sketch14.Placement = App.Placement(V(0, 13.430028, 15.847434), App.Rotation(V(0, 0.762895601, -0.646521695), V(1, 0, 0), V(0, -0.646521695, -0.762895601), "ZXY"))
sketch14.addGeometry(Part.LineSegment(V(-19.570212, 24, 0), V(11.364558, 24, 0)), False)
sketch14.addConstraint([
    Sketcher.Constraint("Horizontal", 0),
    Sketcher.Constraint("DistanceY", -1, 1, 0, 1, Q("24 mm")),
    Sketcher.Constraint("DistanceX", 0, 1, 0, 2, Q("30.93477 mm")),
    Sketcher.Constraint("DistanceX", 0, 1, -1, 1, Q("19.570212 mm")),
])
doc.recompute()

subtractivepipe = doc.addObject("PartDesign::SubtractivePipe", "SubtractivePipe")
body.addObject(subtractivepipe)
subtractivepipe.Profile = sketch13
subtractivepipe.Spine = (sketch14, ["Edge1"])

sketch15 = doc.addObject("Sketcher::SketchObject", "Sketch014")
body.addObject(sketch15)
sketch15.AttachmentSupport = (doc.YZ_Plane, [""])
sketch15.MapMode = "FlatFace"
sketch15.AttachmentOffset = App.Placement(V(0, 0, 90), App.Rotation())
sketch15.addGeometry([
    Part.Circle(V(2.5, 5, 0), V(0, 0, 1), 2),
    Part.Circle(V(2.5, 30, 0), V(0, 0, 1), 2),
], False)
sketch15.addConstraint([
    Sketcher.Constraint("Equal", 0, 1),
    Sketcher.Constraint("Vertical", 0, 3, 1, 3),
    Sketcher.Constraint("Diameter", 0, Q("4 mm")),
    Sketcher.Constraint("DistanceY", -1, 1, 0, 3, Q("5 mm")),
    Sketcher.Constraint("DistanceY", -1, 1, 1, 3, Q("30 mm")),
    Sketcher.Constraint("DistanceX", -1, 1, 0, 3, Q("2.5 mm")),
])
sketch15.setExpression("Constraints[2]", "Params.sketch15_diameter")
pocket8 = doc.addObject("PartDesign::Pocket", "Pocket007")
body.addObject(pocket8)
pocket8.Profile = sketch15
pocket8.setExpression("Length", "Params.pocket8_length")

doc.recompute()
